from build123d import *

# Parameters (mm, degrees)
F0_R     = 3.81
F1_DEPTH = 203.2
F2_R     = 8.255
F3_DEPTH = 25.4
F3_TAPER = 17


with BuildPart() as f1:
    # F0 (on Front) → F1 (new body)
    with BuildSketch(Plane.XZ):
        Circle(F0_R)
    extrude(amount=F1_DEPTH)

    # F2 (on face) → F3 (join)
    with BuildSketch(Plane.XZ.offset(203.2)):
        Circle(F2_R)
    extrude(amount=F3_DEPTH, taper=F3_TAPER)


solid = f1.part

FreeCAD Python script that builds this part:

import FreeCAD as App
import Part
import Sketcher
Q = App.Units.Quantity

doc = App.newDocument("Part")
body = doc.addObject("PartDesign::Body", "Body")

# Sketch on XZ plane
sketch1 = body.newObject("Sketcher::SketchObject", "Sketch")
sketch1.AttachmentSupport = (doc.getObject("XZ_Plane"), [""])
sketch1.MapMode = "FlatFace"
sketch1.addGeometry(Part.Circle(App.Vector(0, 0, 0), App.Vector(0, 0, 1), 3.8), False)
sketch1.addConstraint([
    Sketcher.Constraint("Coincident", 0, 3, -1, 1),
    Sketcher.Constraint("Diameter", 0, Q("0.3 in")),
])
pad1 = body.newObject("PartDesign::Pad", "Pad")
pad1.Profile = sketch1
pad1.Length = Q("8 in")

# Sketch on XZ plane
sketch2 = body.newObject("Sketcher::SketchObject", "Sketch001")
sketch2.AttachmentSupport = (doc.getObject("XZ_Plane"), [""])
sketch2.MapMode = "FlatFace"
sketch2.AttachmentOffset = App.Placement(App.Vector(0, 0, 8 * 25.4), App.Rotation())
sketch2.addGeometry(Part.Circle(App.Vector(0, 0, 0), App.Vector(0, 0, 1), 8), False)
sketch2.addConstraint([
    Sketcher.Constraint("Coincident", 0, 3, -1, 1),
    Sketcher.Constraint("Diameter", 0, Q("0.65 in")),
])
pad2 = body.newObject("PartDesign::Pad", "Pad001")
pad2.Profile = sketch2
pad2.Length = Q("1 in")
pad2.TaperAngle = -17

doc.recompute()
